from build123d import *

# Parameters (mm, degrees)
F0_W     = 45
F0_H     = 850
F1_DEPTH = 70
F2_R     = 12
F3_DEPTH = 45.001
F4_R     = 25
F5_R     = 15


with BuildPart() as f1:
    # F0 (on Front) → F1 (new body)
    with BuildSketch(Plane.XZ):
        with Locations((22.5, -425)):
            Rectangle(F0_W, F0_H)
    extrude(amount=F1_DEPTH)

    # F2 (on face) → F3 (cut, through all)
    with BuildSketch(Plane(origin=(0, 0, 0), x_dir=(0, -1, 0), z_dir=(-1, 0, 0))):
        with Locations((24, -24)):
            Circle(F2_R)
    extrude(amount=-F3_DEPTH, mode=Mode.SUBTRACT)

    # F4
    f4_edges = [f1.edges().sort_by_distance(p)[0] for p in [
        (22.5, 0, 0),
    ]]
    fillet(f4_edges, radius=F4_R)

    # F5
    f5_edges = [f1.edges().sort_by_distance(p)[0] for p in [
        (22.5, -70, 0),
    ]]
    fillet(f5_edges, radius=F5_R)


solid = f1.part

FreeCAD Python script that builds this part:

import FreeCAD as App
import Part
import Sketcher

V = App.Vector


def edges_at(feature, points):
    """Names of the edges that pass closest to the given points."""
    edges = feature.Shape.Edges
    near = lambda p: min(range(len(edges)), key=lambda i: edges[i].distToShape(Part.Vertex(*p))[0])
    return sorted({f"Edge{near(p) + 1}" for p in points})

doc = App.newDocument("Part")
body = doc.addObject("PartDesign::Body", "Body")

sketch1 = body.newObject("Sketcher::SketchObject", "Sketch")
sketch1.AttachmentSupport = (doc.getObject("XZ_Plane"), [""])
sketch1.MapMode = "FlatFace"
sketch1.addGeometry(Part.LineSegment(V(0, 0, 0), V(0, -850, 0)), False)
sketch1.addGeometry(Part.LineSegment(V(0, -850, 0), V(45, -850, 0)), False)
sketch1.addGeometry(Part.LineSegment(V(45, -850, 0), V(45, 0, 0)), False)
sketch1.addGeometry(Part.LineSegment(V(45, 0, 0), V(0, 0, 0)), False)
sketch1.addConstraint(Sketcher.Constraint("Coincident", 0, 2, 1, 1))
sketch1.addConstraint(Sketcher.Constraint("Coincident", 1, 2, 2, 1))
sketch1.addConstraint(Sketcher.Constraint("Coincident", 2, 2, 3, 1))
sketch1.addConstraint(Sketcher.Constraint("Coincident", 3, 2, 0, 1))
sketch1.addConstraint(Sketcher.Constraint("Vertical", 0))
sketch1.addConstraint(Sketcher.Constraint("Horizontal", 1))
sketch1.addConstraint(Sketcher.Constraint("Vertical", 2))
sketch1.addConstraint(Sketcher.Constraint("Horizontal", 3))
sketch1.addConstraint(Sketcher.Constraint("Coincident", 3, 2, -1, 1))
sketch1.addConstraint(Sketcher.Constraint("DistanceX", 1, 1, 1, 2, 45.0))
sketch1.addConstraint(Sketcher.Constraint("DistanceY", 0, 2, 0, 1, 850.0))
pad1 = body.newObject("PartDesign::Pad", "Pad")
pad1.Profile = sketch1
pad1.Length = 70

sketch2 = body.newObject("Sketcher::SketchObject", "Sketch001")
sketch2.AttachmentSupport = (doc.getObject("YZ_Plane"), [""])
sketch2.MapMode = "FlatFace"
sketch2.addGeometry(Part.Circle(V(-24, -24, 0), V(0, 0, 1), 12), False)
sketch2.addConstraint(Sketcher.Constraint("Diameter", 0, 24.0))
sketch2.addConstraint(Sketcher.Constraint("DistanceX", 0, 3, -1, 1, 24.0))
sketch2.addConstraint(Sketcher.Constraint("DistanceY", 0, 3, -1, 1, 24.0))
pocket1 = body.newObject("PartDesign::Pocket", "Pocket")
pocket1.Profile = sketch2
pocket1.Type = "ThroughAll"
pocket1.Reversed = True
doc.recompute()

fillet = body.newObject("PartDesign::Fillet", "Fillet")
fillet.Base = (pocket1, edges_at(pocket1, [(22.5, 0, 0)]))
fillet.Radius = 25
doc.recompute()

fillet2 = body.newObject("PartDesign::Fillet", "Fillet001")
fillet2.Base = (fillet, edges_at(fillet, [(22.5, -70, 0)]))
fillet2.Radius = 15

doc.recompute()
